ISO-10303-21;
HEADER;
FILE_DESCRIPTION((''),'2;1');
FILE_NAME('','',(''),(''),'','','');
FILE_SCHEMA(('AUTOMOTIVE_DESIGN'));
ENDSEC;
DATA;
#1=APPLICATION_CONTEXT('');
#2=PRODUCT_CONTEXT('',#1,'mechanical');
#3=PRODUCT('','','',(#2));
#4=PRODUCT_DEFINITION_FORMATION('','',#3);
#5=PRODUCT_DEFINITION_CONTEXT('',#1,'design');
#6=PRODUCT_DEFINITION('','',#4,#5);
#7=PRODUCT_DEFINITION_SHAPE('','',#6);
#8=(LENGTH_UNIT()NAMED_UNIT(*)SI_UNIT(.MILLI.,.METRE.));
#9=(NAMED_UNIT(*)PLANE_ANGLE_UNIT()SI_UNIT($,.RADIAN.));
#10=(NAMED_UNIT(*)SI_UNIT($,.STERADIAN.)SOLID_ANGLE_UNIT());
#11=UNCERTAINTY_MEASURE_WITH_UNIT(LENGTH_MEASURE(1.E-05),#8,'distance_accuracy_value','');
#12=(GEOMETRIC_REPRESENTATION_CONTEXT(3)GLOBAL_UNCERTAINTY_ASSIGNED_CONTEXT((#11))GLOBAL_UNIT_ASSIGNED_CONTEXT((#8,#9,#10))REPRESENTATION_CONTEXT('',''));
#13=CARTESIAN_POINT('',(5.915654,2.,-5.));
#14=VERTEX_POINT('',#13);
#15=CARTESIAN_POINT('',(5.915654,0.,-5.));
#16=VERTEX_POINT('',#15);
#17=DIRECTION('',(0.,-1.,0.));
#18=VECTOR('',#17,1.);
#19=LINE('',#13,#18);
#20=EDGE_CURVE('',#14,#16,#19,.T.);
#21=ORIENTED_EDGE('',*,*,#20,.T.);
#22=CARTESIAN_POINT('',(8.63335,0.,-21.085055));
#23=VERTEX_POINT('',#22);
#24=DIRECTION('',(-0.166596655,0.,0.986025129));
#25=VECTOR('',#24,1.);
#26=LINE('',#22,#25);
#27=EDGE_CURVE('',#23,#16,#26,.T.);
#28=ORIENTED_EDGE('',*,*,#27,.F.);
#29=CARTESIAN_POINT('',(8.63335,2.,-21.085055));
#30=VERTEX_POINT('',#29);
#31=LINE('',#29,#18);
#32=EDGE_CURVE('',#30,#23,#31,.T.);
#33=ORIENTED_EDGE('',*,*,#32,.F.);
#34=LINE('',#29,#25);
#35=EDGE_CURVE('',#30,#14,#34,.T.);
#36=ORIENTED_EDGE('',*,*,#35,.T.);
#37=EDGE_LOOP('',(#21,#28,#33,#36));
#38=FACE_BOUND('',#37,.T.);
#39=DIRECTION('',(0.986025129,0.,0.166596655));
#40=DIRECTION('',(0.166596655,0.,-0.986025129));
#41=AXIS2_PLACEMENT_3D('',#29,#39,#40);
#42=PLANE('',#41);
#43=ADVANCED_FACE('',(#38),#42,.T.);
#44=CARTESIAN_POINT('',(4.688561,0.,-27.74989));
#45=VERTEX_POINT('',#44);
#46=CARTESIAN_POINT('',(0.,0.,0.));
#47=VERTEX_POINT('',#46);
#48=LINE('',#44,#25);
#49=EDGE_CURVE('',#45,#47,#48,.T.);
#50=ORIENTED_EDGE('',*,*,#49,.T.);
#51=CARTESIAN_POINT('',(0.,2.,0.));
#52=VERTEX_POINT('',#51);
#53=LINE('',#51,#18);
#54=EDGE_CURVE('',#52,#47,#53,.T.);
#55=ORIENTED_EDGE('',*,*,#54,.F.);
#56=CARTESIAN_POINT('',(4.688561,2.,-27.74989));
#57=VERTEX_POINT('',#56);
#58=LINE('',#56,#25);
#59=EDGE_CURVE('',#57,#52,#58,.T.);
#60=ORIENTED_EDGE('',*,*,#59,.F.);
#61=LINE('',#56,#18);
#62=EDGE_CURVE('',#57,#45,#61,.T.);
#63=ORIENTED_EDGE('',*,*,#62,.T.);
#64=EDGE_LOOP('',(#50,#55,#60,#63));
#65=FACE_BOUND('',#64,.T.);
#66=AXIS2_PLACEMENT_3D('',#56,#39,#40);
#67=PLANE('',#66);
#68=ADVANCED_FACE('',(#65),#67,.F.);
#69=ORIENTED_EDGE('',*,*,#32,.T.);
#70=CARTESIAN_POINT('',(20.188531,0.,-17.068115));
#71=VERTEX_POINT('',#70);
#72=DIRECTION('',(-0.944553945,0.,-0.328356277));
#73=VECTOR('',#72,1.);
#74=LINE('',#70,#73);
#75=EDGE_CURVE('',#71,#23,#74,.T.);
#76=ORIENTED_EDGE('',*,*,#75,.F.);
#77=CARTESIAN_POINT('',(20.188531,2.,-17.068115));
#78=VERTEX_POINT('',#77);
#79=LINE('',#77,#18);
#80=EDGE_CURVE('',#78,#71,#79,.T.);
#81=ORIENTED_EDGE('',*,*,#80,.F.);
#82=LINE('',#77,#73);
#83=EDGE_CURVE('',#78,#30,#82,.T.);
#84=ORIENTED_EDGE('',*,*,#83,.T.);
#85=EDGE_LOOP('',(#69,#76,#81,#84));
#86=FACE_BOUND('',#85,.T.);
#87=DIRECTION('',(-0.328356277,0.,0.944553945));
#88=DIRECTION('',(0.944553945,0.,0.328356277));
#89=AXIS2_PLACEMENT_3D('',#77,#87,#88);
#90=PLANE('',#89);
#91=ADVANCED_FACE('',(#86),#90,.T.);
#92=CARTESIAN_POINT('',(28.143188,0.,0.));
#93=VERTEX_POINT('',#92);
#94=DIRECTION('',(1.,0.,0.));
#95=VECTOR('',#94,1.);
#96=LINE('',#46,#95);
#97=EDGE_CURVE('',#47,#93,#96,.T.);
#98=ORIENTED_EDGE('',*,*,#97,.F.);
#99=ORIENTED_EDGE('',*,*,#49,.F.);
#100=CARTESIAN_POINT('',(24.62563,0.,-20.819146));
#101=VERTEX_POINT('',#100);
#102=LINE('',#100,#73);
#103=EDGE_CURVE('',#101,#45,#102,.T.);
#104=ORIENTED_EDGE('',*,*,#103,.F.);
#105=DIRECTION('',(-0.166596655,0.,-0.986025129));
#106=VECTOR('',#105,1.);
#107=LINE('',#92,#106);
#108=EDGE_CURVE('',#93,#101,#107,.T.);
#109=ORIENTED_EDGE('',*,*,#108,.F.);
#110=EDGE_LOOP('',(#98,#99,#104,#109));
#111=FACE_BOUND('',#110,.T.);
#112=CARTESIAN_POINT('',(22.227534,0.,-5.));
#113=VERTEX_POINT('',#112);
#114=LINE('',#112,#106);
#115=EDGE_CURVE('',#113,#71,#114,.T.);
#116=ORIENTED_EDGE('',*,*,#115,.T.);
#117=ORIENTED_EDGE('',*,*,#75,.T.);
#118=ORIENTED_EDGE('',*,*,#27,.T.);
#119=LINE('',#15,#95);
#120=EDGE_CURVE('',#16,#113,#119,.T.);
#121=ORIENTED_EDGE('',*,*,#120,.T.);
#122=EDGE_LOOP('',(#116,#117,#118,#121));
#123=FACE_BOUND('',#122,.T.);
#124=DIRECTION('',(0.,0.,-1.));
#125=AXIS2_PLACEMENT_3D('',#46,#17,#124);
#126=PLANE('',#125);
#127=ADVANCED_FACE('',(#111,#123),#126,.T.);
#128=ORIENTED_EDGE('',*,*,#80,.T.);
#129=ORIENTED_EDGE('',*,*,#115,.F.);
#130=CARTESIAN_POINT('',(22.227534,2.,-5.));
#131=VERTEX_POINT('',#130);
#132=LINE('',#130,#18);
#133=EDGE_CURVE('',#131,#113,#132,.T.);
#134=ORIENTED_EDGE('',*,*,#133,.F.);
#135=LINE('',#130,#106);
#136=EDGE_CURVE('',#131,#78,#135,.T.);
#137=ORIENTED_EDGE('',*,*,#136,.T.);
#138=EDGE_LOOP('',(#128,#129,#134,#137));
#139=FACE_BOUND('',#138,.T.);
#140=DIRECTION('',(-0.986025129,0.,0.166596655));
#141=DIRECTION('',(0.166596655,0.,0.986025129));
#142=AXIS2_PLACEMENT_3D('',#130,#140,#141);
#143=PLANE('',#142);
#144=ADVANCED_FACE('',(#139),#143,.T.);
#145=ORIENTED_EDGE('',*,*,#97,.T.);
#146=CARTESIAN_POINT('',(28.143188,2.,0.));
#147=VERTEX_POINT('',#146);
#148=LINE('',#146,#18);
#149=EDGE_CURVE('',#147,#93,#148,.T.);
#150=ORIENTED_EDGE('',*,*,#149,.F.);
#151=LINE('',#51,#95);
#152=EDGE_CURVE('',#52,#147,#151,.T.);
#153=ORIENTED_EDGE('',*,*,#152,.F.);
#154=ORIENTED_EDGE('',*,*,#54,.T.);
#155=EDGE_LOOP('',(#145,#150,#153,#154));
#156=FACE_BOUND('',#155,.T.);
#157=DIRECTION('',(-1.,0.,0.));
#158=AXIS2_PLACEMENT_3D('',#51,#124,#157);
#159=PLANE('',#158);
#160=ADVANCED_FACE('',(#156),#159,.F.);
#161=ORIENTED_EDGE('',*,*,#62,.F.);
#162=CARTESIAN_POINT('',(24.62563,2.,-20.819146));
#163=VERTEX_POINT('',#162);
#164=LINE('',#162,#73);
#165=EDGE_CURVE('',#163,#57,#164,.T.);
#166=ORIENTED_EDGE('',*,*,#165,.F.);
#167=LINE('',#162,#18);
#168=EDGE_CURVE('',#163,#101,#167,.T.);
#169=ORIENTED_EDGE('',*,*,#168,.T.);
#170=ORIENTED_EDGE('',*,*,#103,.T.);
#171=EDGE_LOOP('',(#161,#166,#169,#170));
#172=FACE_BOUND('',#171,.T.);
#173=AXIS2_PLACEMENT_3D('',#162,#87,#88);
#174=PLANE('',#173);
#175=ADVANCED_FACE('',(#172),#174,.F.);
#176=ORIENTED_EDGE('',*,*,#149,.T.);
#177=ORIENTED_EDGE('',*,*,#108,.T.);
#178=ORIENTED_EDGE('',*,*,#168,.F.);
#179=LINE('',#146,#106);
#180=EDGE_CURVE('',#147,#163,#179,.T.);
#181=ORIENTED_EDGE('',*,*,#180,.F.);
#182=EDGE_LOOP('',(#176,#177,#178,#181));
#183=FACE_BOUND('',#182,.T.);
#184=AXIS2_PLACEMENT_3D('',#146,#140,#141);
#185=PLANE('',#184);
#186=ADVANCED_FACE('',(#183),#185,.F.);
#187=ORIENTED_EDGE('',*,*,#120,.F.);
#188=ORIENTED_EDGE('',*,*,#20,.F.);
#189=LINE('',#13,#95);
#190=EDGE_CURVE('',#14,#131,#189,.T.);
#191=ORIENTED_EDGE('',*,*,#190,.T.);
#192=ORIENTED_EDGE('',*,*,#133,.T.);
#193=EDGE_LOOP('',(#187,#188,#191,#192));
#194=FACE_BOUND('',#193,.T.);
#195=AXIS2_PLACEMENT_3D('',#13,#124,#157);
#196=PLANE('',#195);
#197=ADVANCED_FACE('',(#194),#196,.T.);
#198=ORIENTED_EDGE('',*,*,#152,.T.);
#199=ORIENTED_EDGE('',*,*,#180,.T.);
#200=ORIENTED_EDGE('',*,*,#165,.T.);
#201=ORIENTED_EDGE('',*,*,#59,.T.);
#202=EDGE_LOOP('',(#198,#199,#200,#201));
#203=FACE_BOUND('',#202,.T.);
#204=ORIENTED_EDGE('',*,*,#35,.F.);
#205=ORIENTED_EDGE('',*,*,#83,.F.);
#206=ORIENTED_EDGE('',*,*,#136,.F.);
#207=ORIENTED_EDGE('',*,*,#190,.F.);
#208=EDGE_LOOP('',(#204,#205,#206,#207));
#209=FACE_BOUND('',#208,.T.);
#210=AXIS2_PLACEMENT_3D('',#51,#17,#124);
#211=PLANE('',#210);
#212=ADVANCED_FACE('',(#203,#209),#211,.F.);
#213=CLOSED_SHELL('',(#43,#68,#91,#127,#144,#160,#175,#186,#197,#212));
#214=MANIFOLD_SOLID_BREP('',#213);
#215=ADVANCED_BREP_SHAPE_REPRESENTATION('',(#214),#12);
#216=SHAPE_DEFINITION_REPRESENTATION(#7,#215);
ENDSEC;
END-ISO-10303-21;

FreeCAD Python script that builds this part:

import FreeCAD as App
import Part
import Sketcher

V = App.Vector
Q = App.Units.Quantity

doc = App.newDocument("Part")
params = doc.addObject("Spreadsheet::Sheet", "Params")
for row, (alias, value) in enumerate([
    ("pad1_length", "2 mm"),
], start=1):
    params.set(f"A{row}", alias)
    params.set(f"B{row}", "=" + value)
    params.setAlias(f"B{row}", alias)

body = doc.addObject("PartDesign::Body", "Body")

sketch1 = body.newObject("Sketcher::SketchObject", "Sketch")
sketch1.AttachmentSupport = (doc.getObject("XZ_Plane"), [""])
sketch1.MapMode = "FlatFace"
sketch1.addGeometry(Part.LineSegment(V(0, 0, 0), V(28, 0, 0)), False)
sketch1.addGeometry(Part.LineSegment(V(28, 0, 0), V(25, -21, 0)), False)
sketch1.addGeometry(Part.LineSegment(V(25, -21, 0), V(5, -28, 0)), False)
sketch1.addGeometry(Part.LineSegment(V(5, -28, 0), V(0, 0, 0)), False)
sketch1.addGeometry(Part.LineSegment(V(6, -5, 0), V(9, -21, 0)), False)
sketch1.addGeometry(Part.LineSegment(V(9, -21, 0), V(20, -17, 0)), False)
sketch1.addGeometry(Part.LineSegment(V(20, -17, 0), V(22, -5, 0)), False)
sketch1.addGeometry(Part.LineSegment(V(22, -5, 0), V(6, -5, 0)), False)
sketch1.addConstraint(Sketcher.Constraint("Coincident", 0, 2, 1, 1))
sketch1.addConstraint(Sketcher.Constraint("Coincident", 1, 2, 2, 1))
sketch1.addConstraint(Sketcher.Constraint("Coincident", 2, 2, 3, 1))
sketch1.addConstraint(Sketcher.Constraint("Coincident", 3, 2, 0, 1))
sketch1.addConstraint(Sketcher.Constraint("Coincident", 4, 2, 5, 1))
sketch1.addConstraint(Sketcher.Constraint("Coincident", 5, 2, 6, 1))
sketch1.addConstraint(Sketcher.Constraint("Coincident", 6, 2, 7, 1))
sketch1.addConstraint(Sketcher.Constraint("Coincident", 7, 2, 4, 1))
sketch1.addConstraint(Sketcher.Constraint("Horizontal", 0))
sketch1.addConstraint(Sketcher.Constraint("Horizontal", 7))
sketch1.addConstraint(Sketcher.Constraint("Coincident", 3, 2, -1, 1))
sketch1.addConstraint(Sketcher.Constraint("Parallel", 3, 4))
sketch1.addConstraint(Sketcher.Constraint("Parallel", 2, 5))
sketch1.addConstraint(Sketcher.Constraint("Parallel", 1, 6))
sketch1.addConstraint(Sketcher.Constraint("DistanceY", 6, 2, -1, 1, 5.0))
sketch1.addConstraint(Sketcher.Constraint("Angle", 1, Q("-99.59 deg")))
sketch1.addConstraint(Sketcher.Constraint("Angle", 3, Q("99.59 deg")))
sketch1.addConstraint(Sketcher.Constraint("DistanceX", 7, 2, 7, 1, 16.31188))
sketch1.addConstraint(Sketcher.Constraint("DistanceX", 5, 2, 1, 2, 4.437099))
sketch1.addConstraint(Sketcher.Constraint("Distance", 2, 21.107391))
sketch1.addConstraint(Sketcher.Constraint("Distance", 5, 12.23348))
sketch1.addConstraint(Sketcher.Constraint("DistanceX", 0, 1, 0, 2, 28.143188))
sketch1.addConstraint(Sketcher.Constraint("DistanceX", -1, 1, 1, 2, 24.62563))
pad1 = body.newObject("PartDesign::Pad", "Pad")
pad1.Profile = sketch1
pad1.setExpression("Length", "Params.pad1_length")
pad1.Reversed = True

doc.recompute()
